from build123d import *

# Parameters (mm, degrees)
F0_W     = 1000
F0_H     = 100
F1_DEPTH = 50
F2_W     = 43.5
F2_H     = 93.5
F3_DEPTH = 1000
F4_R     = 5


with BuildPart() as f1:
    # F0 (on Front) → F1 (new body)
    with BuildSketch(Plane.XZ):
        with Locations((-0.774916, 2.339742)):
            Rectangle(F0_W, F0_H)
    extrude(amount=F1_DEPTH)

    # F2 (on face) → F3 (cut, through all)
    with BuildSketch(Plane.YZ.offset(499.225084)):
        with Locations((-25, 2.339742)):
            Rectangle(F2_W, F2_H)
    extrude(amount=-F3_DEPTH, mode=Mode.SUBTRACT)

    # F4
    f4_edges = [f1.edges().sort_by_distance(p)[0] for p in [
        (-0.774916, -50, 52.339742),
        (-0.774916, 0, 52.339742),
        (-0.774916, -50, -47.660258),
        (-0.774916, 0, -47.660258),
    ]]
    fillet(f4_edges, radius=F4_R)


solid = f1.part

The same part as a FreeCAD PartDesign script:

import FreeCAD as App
import Part
import Sketcher

V = App.Vector


def edges_at(feature, points):
    """Names of the edges that pass closest to the given points."""
    edges = feature.Shape.Edges
    near = lambda p: min(range(len(edges)), key=lambda i: edges[i].distToShape(Part.Vertex(*p))[0])
    return sorted({f"Edge{near(p) + 1}" for p in points})

doc = App.newDocument("Part")
body = doc.addObject("PartDesign::Body", "Body")

# Sketch on XZ plane
sketch1 = body.newObject("Sketcher::SketchObject", "Sketch")
sketch1.AttachmentSupport = (doc.getObject("XZ_Plane"), [""])
sketch1.MapMode = "FlatFace"
sketch1.addGeometry(Part.LineSegment(V(-501, 52, 0), V(-501, -48, 0)), False)
sketch1.addGeometry(Part.LineSegment(V(-501, -48, 0), V(499, -48, 0)), False)
sketch1.addGeometry(Part.LineSegment(V(499, -48, 0), V(499, 52, 0)), False)
sketch1.addGeometry(Part.LineSegment(V(499, 52, 0), V(-501, 52, 0)), False)
sketch1.addConstraint(Sketcher.Constraint("Coincident", 0, 2, 1, 1))
sketch1.addConstraint(Sketcher.Constraint("Coincident", 1, 2, 2, 1))
sketch1.addConstraint(Sketcher.Constraint("Coincident", 2, 2, 3, 1))
sketch1.addConstraint(Sketcher.Constraint("Coincident", 3, 2, 0, 1))
sketch1.addConstraint(Sketcher.Constraint("Vertical", 0))
sketch1.addConstraint(Sketcher.Constraint("Horizontal", 1))
sketch1.addConstraint(Sketcher.Constraint("Vertical", 2))
sketch1.addConstraint(Sketcher.Constraint("Horizontal", 3))
sketch1.addConstraint(Sketcher.Constraint("DistanceX", 1, 1, 1, 2, 1000.0))
sketch1.addConstraint(Sketcher.Constraint("DistanceY", 0, 2, 0, 1, 100.0))
sketch1.addConstraint(Sketcher.Constraint("DistanceX", 0, 2, -1, 1, 500.774916))
sketch1.addConstraint(Sketcher.Constraint("DistanceY", 0, 2, -1, 1, 47.660258))
pad1 = body.newObject("PartDesign::Pad", "Pad")
pad1.Profile = sketch1
pad1.Length = 50

# Sketch on YZ plane
sketch2 = body.newObject("Sketcher::SketchObject", "Sketch001")
sketch2.AttachmentSupport = (doc.getObject("YZ_Plane"), [""])
sketch2.MapMode = "FlatFace"
sketch2.AttachmentOffset = App.Placement(V(0, 0, 499.225084), App.Rotation())
sketch2.addGeometry(Part.LineSegment(V(-47, 49, 0), V(-47, -44, 0)), False)
sketch2.addGeometry(Part.LineSegment(V(-47, -44, 0), V(-3, -44, 0)), False)
sketch2.addGeometry(Part.LineSegment(V(-3, -44, 0), V(-3, 49, 0)), False)
sketch2.addGeometry(Part.LineSegment(V(-3, 49, 0), V(-47, 49, 0)), False)
sketch2.addConstraint(Sketcher.Constraint("Coincident", 0, 2, 1, 1))
sketch2.addConstraint(Sketcher.Constraint("Coincident", 1, 2, 2, 1))
sketch2.addConstraint(Sketcher.Constraint("Coincident", 2, 2, 3, 1))
sketch2.addConstraint(Sketcher.Constraint("Coincident", 3, 2, 0, 1))
sketch2.addConstraint(Sketcher.Constraint("Vertical", 0))
sketch2.addConstraint(Sketcher.Constraint("Horizontal", 1))
sketch2.addConstraint(Sketcher.Constraint("Vertical", 2))
sketch2.addConstraint(Sketcher.Constraint("Horizontal", 3))
sketch2.addConstraint(Sketcher.Constraint("DistanceX", 1, 1, 1, 2, 43.5))
sketch2.addConstraint(Sketcher.Constraint("DistanceY", 0, 2, 0, 1, 93.5))
sketch2.addConstraint(Sketcher.Constraint("DistanceX", 0, 2, -1, 1, 46.75))
sketch2.addConstraint(Sketcher.Constraint("DistanceY", 0, 2, -1, 1, 44.410258))
pocket1 = body.newObject("PartDesign::Pocket", "Pocket")
pocket1.Profile = sketch2
pocket1.Type = "ThroughAll"
doc.recompute()

fillet = body.newObject("PartDesign::Fillet", "Fillet")
fillet.Base = (pocket1, edges_at(pocket1, [
    (-0.775, -50, 52.34),
    (-0.775, 0, 52.34),
    (-0.775, -50, -47.66),
    (-0.775, 0, -47.66),
]))
fillet.Radius = 5

doc.recompute()
